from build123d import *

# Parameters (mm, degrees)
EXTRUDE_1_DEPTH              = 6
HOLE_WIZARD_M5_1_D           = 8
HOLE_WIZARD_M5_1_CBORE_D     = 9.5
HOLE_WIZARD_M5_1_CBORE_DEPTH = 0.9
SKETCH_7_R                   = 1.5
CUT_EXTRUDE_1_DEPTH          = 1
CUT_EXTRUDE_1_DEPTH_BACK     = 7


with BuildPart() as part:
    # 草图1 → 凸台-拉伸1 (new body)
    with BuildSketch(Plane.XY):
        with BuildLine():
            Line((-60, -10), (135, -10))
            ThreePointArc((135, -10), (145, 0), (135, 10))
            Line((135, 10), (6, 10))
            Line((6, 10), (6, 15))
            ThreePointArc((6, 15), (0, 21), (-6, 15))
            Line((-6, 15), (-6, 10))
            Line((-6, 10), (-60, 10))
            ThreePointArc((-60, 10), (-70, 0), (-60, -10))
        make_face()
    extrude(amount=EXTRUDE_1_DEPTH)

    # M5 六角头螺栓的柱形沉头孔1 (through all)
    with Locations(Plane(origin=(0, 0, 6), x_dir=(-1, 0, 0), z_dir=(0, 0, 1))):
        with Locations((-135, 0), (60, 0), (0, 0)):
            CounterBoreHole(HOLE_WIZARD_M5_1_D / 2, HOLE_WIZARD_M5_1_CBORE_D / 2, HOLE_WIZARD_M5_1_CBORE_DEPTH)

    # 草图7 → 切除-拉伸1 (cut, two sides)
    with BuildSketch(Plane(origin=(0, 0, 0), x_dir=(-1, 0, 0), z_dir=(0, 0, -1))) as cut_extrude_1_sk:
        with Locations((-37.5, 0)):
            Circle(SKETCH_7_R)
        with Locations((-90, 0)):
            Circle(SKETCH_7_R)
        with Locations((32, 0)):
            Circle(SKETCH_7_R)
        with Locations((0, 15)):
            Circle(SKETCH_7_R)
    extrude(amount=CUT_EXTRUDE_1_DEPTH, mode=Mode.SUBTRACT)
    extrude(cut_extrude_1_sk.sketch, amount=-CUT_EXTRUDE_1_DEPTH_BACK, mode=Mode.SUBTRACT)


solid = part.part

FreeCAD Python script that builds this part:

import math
import FreeCAD as App
import Part
import Sketcher

V = App.Vector
Q = App.Units.Quantity

doc = App.newDocument("Part")
body = doc.addObject("PartDesign::Body", "Body")

# Sketch on XY plane
sketch1 = body.newObject("Sketcher::SketchObject", "Sketch")
sketch1.AttachmentSupport = (doc.getObject("XY_Plane"), [""])
sketch1.MapMode = "FlatFace"
sketch1.addGeometry(Part.LineSegment(V(-60, -10, 0), V(135, -10, 0)), False)
sketch1.addGeometry(Part.ArcOfCircle(Part.Circle(V(135, 0, 0), V(0, 0, 1), 10), math.radians(-90), math.radians(90)), False)
sketch1.addGeometry(Part.LineSegment(V(135, 10, 0), V(6, 10, 0)), False)
sketch1.addGeometry(Part.LineSegment(V(6, 10, 0), V(6, 15, 0)), False)
sketch1.addGeometry(Part.ArcOfCircle(Part.Circle(V(0, 15, 0), V(0, 0, 1), 6), math.radians(0), math.radians(180)), False)
sketch1.addGeometry(Part.LineSegment(V(-6, 15, 0), V(-6, 10, 0)), False)
sketch1.addGeometry(Part.LineSegment(V(-6, 10, 0), V(-60, 10, 0)), False)
sketch1.addGeometry(Part.ArcOfCircle(Part.Circle(V(-60, 0, 0), V(0, 0, 1), 10), math.radians(90), math.radians(270)), False)
sketch1.addConstraint(Sketcher.Constraint("Tangent", 0, 2, 1, 1))
sketch1.addConstraint(Sketcher.Constraint("Tangent", 1, 2, 2, 1))
sketch1.addConstraint(Sketcher.Constraint("Coincident", 2, 2, 3, 1))
sketch1.addConstraint(Sketcher.Constraint("Tangent", 3, 2, 4, 1))
sketch1.addConstraint(Sketcher.Constraint("Tangent", 4, 2, 5, 1))
sketch1.addConstraint(Sketcher.Constraint("Coincident", 5, 2, 6, 1))
sketch1.addConstraint(Sketcher.Constraint("Tangent", 6, 2, 7, 1))
sketch1.addConstraint(Sketcher.Constraint("Tangent", 7, 2, 0, 1))
sketch1.addConstraint(Sketcher.Constraint("Horizontal", 0))
sketch1.addConstraint(Sketcher.Constraint("Horizontal", 2))
sketch1.addConstraint(Sketcher.Constraint("Vertical", 3))
sketch1.addConstraint(Sketcher.Constraint("Vertical", 5))
sketch1.addConstraint(Sketcher.Constraint("Horizontal", 6))
sketch1.addConstraint(Sketcher.Constraint("Equal", 1, 7))
sketch1.addConstraint(Sketcher.Constraint("PointOnObject", 1, 3, -1))
sketch1.addConstraint(Sketcher.Constraint("PointOnObject", 4, 3, -2))
sketch1.addConstraint(Sketcher.Constraint("Radius", 1, Q("10 mm")))
sketch1.addConstraint(Sketcher.Constraint("Radius", 4, Q("6 mm")))
sketch1.addConstraint(Sketcher.Constraint("DistanceX", 0, 1, 0, 2, Q("195 mm")))
sketch1.addConstraint(Sketcher.Constraint("DistanceX", 2, 2, 2, 1, Q("129 mm")))
sketch1.addConstraint(Sketcher.Constraint("DistanceY", 3, 1, 3, 2, Q("5 mm")))
pad1 = body.newObject("PartDesign::Pad", "Pad")
pad1.Profile = sketch1
pad1.Length = 6

# Sketch on XY plane
sketch2 = body.newObject("Sketcher::SketchObject", "Sketch001")
sketch2.AttachmentSupport = (doc.getObject("XY_Plane"), [""])
sketch2.MapMode = "FlatFace"
sketch2.AttachmentOffset = App.Placement(V(0, 0, 6), App.Rotation())
sketch2.addGeometry(Part.Circle(V(135, 0, 0), V(0, 0, 1), 4), False)
sketch2.addGeometry(Part.Circle(V(-60, 0, 0), V(0, 0, 1), 4), False)
sketch2.addGeometry(Part.Circle(V(0, 0, 0), V(0, 0, 1), 4), False)
sketch2.addConstraint(Sketcher.Constraint("Coincident", 2, 3, -1, 1))
sketch2.addConstraint(Sketcher.Constraint("Equal", 0, 1))
sketch2.addConstraint(Sketcher.Constraint("Equal", 1, 2))
sketch2.addConstraint(Sketcher.Constraint("PointOnObject", 0, 3, -1))
sketch2.addConstraint(Sketcher.Constraint("PointOnObject", 1, 3, -1))
sketch2.addConstraint(Sketcher.Constraint("Diameter", 0, Q("8 mm")))
sketch2.addConstraint(Sketcher.Constraint("DistanceX", -1, 1, 0, 3, Q("135 mm")))
sketch2.addConstraint(Sketcher.Constraint("DistanceX", 1, 3, -1, 1, Q("60 mm")))
doc.recompute()
hole = body.newObject("PartDesign::Hole", "Hole")
hole.Profile = sketch2
hole.ThreadType = "None"
hole.Diameter = 8
hole.DepthType = "ThroughAll"
hole.HoleCutType = "Counterbore"
hole.HoleCutDiameter = 9.5
hole.HoleCutDepth = 0.9

# Sketch on XY plane
sketch3 = body.newObject("Sketcher::SketchObject", "Sketch002")
sketch3.AttachmentSupport = (doc.getObject("XY_Plane"), [""])
sketch3.MapMode = "FlatFace"
sketch3.addGeometry(Part.Circle(V(37.5, 0, 0), V(0, 0, 1), 1.5), False)
sketch3.addGeometry(Part.Circle(V(90, 0, 0), V(0, 0, 1), 1.5), False)
sketch3.addGeometry(Part.Circle(V(-32, 0, 0), V(0, 0, 1), 1.5), False)
sketch3.addGeometry(Part.Circle(V(0, 15, 0), V(0, 0, 1), 1.5), False)
sketch3.addConstraint(Sketcher.Constraint("Equal", 0, 1))
sketch3.addConstraint(Sketcher.Constraint("Equal", 1, 2))
sketch3.addConstraint(Sketcher.Constraint("Equal", 2, 3))
sketch3.addConstraint(Sketcher.Constraint("PointOnObject", 0, 3, -1))
sketch3.addConstraint(Sketcher.Constraint("PointOnObject", 1, 3, -1))
sketch3.addConstraint(Sketcher.Constraint("PointOnObject", 2, 3, -1))
sketch3.addConstraint(Sketcher.Constraint("PointOnObject", 3, 3, -2))
sketch3.addConstraint(Sketcher.Constraint("Diameter", 0, Q("3 mm")))
sketch3.addConstraint(Sketcher.Constraint("DistanceX", -1, 1, 1, 3, Q("90 mm")))
sketch3.addConstraint(Sketcher.Constraint("DistanceX", 2, 3, -1, 1, Q("32 mm")))
sketch3.addConstraint(Sketcher.Constraint("DistanceY", -1, 1, 3, 3, Q("15 mm")))
sketch3.addConstraint(Sketcher.Constraint("DistanceX", -1, 1, 0, 3, Q("37.5 mm")))
pocket1 = body.newObject("PartDesign::Pocket", "Pocket")
pocket1.Profile = sketch3
pocket1.Type = "ThroughAll"
pocket1.Midplane = True

doc.recompute()
